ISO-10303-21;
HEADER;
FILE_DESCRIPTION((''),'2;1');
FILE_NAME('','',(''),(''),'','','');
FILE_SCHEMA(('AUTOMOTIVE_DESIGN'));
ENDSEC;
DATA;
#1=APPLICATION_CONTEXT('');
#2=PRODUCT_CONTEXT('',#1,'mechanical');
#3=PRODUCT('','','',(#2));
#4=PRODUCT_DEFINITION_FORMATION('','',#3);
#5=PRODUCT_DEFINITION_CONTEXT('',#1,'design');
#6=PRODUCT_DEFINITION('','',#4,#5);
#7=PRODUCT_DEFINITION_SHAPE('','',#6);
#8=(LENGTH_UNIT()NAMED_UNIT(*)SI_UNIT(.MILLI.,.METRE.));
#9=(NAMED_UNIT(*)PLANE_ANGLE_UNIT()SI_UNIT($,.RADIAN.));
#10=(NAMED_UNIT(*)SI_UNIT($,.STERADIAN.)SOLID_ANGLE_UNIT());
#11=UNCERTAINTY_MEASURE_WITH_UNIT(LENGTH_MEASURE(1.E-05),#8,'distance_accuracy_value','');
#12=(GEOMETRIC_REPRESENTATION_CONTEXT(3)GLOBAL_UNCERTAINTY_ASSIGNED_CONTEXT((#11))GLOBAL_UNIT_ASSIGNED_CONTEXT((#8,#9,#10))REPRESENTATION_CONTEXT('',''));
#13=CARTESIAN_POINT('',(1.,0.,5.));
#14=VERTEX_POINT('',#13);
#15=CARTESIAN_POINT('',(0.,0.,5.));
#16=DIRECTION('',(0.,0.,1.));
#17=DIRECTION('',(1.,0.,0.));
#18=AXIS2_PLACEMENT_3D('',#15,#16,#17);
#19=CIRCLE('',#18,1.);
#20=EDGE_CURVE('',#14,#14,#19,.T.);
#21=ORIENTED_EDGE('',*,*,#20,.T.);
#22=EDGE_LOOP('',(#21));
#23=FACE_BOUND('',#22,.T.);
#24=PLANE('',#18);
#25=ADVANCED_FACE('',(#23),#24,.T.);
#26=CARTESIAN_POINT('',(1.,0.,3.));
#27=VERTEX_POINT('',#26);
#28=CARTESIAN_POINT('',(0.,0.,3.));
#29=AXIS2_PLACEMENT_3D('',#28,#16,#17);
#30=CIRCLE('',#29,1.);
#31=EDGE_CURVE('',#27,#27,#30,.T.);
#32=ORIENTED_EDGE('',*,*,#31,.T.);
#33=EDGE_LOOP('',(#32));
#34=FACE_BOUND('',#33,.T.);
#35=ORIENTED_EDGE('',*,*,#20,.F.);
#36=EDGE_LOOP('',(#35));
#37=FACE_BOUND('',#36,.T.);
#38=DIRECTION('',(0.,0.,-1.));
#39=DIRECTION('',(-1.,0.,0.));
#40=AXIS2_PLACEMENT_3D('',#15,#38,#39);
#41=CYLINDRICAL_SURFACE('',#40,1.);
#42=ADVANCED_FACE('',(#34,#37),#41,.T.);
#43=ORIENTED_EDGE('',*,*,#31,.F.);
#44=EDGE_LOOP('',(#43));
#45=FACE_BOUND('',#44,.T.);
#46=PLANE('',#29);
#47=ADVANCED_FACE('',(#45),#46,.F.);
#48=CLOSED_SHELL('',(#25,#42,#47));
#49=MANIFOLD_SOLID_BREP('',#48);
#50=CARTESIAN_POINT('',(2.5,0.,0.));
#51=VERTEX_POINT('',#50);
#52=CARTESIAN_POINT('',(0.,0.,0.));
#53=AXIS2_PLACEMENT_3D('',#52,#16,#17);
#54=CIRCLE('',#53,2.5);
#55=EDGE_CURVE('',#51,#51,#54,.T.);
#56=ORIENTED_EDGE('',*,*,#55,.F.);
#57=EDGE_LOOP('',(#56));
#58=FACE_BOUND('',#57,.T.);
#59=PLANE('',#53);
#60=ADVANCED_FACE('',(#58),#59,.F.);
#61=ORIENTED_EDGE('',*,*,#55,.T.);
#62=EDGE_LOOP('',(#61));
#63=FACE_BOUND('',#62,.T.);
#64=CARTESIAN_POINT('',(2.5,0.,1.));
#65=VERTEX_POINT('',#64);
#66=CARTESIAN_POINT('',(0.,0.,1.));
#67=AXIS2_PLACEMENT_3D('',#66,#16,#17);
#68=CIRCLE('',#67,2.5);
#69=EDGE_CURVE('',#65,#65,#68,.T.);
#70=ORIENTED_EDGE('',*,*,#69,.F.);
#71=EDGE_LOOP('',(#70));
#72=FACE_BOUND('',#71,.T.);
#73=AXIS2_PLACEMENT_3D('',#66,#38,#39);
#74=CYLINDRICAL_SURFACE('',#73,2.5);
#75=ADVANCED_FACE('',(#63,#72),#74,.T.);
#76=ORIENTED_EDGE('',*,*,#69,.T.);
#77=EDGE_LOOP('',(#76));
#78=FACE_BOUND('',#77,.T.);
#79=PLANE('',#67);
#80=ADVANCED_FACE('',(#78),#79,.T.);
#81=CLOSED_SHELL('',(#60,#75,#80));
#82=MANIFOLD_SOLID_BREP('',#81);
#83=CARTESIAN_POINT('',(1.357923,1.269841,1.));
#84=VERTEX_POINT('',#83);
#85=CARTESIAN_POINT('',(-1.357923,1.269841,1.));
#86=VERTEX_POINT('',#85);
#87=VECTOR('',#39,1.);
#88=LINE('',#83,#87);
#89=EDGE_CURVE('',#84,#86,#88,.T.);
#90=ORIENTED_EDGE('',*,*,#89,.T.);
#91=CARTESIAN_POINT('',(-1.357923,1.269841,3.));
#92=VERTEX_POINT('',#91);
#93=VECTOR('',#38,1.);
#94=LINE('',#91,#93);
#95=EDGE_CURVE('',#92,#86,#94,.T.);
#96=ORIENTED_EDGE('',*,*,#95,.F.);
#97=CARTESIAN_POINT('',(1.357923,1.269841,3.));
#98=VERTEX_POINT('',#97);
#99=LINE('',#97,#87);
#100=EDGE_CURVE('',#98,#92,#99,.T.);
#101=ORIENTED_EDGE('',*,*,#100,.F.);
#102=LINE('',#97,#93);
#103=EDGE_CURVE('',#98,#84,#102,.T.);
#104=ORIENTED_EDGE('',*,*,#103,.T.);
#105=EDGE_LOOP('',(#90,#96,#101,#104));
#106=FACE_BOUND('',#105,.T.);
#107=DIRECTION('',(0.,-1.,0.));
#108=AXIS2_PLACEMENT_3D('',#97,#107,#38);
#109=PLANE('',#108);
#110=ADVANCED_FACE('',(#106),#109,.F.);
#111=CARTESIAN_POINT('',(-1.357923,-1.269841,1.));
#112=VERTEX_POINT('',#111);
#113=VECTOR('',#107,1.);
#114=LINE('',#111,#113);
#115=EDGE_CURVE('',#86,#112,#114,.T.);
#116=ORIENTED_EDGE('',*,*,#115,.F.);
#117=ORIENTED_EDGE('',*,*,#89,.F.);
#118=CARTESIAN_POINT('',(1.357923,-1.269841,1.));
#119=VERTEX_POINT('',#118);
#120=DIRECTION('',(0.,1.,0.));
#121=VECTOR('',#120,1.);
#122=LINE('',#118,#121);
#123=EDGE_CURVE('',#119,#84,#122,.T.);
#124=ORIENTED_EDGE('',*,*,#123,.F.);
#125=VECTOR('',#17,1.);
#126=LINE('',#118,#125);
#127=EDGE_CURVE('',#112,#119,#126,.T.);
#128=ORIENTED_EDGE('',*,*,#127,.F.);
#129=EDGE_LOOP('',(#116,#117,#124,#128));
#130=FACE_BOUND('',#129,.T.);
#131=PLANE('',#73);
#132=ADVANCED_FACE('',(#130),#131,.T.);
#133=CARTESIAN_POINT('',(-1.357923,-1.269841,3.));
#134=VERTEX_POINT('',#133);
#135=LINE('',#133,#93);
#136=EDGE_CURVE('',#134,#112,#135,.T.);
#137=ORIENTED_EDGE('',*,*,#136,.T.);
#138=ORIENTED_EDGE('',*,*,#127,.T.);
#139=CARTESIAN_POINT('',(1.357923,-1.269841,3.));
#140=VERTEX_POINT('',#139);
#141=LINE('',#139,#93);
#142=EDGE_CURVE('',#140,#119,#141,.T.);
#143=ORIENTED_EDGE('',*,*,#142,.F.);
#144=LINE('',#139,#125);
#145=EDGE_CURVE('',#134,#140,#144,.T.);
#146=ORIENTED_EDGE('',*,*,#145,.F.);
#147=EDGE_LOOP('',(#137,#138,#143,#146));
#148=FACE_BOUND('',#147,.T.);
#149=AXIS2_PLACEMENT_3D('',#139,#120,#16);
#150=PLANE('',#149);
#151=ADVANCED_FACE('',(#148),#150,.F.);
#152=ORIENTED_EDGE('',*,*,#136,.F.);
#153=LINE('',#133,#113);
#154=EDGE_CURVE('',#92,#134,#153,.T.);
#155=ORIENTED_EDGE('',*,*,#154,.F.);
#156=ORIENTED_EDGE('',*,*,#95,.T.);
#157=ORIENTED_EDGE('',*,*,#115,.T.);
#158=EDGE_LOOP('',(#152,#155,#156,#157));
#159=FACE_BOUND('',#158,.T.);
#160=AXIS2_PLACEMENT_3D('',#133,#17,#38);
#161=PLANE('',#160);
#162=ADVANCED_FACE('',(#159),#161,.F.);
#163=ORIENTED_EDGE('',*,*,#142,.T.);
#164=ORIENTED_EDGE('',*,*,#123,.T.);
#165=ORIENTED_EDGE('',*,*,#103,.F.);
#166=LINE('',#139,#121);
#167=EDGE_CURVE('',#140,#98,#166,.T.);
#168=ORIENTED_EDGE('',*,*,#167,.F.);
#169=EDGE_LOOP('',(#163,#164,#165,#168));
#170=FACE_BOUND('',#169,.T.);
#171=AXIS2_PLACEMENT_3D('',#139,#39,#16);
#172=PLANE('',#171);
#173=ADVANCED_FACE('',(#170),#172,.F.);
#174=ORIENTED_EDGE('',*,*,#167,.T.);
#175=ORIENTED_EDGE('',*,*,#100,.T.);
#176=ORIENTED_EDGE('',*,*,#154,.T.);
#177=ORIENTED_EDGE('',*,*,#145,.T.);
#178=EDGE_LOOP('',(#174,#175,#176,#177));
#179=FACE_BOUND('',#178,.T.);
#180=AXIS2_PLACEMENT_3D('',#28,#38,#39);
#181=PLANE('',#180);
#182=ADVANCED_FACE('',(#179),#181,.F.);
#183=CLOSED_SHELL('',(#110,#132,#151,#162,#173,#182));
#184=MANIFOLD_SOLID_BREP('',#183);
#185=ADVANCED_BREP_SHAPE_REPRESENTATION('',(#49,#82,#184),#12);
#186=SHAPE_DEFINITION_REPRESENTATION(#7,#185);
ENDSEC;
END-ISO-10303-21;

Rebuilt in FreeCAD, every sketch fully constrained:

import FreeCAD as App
import Part
import Sketcher
Q = App.Units.Quantity

doc = App.newDocument("Part")
params = doc.addObject("Spreadsheet::Sheet", "Params")
for row, (alias, value) in enumerate([
    ("sketch1_diameter", "5 mm"),
    ("pad1_length", "1 mm"),
    ("pad2_length", "2 mm"),
    ("sketch3_diameter", "2 mm"),
    ("pad3_length", "2 mm"),
], start=1):
    params.set(f"A{row}", alias)
    params.set(f"B{row}", "=" + value)
    params.setAlias(f"B{row}", alias)

body = doc.addObject("PartDesign::Body", "Body")

sketch1 = body.newObject("Sketcher::SketchObject", "Sketch")
sketch1.AttachmentSupport = (doc.getObject("XY_Plane"), [""])
sketch1.MapMode = "FlatFace"
sketch1.addGeometry(Part.Circle(App.Vector(0, 0, 0), App.Vector(0, 0, 1), 2.5), False)
sketch1.addConstraint([
    Sketcher.Constraint("Coincident", 0, 3, -1, 1),
    Sketcher.Constraint("Diameter", 0, Q("5 mm")),
])
sketch1.setExpression("Constraints[1]", "Params.sketch1_diameter")
pad1 = body.newObject("PartDesign::Pad", "Pad")
pad1.Profile = sketch1
pad1.setExpression("Length", "Params.pad1_length")
body2 = doc.addObject("PartDesign::Body", "Body001")

sketch2 = body2.newObject("Sketcher::SketchObject", "Sketch001")
sketch2.AttachmentSupport = (doc.getObject("XY_Plane001"), [""])
sketch2.MapMode = "FlatFace"
sketch2.AttachmentOffset = App.Placement(App.Vector(0, 0, 1), App.Rotation())
sketch2.addGeometry([
    Part.LineSegment(App.Vector(-1.4, 1.3, 0), App.Vector(-1.4, -1.3, 0)),
    Part.LineSegment(App.Vector(-1.4, -1.3, 0), App.Vector(1.4, -1.3, 0)),
    Part.LineSegment(App.Vector(1.4, -1.3, 0), App.Vector(1.4, 1.3, 0)),
    Part.LineSegment(App.Vector(1.4, 1.3, 0), App.Vector(-1.4, 1.3, 0)),
], False)
sketch2.addConstraint([
    Sketcher.Constraint("Coincident", 0, 2, 1, 1),
    Sketcher.Constraint("Coincident", 1, 2, 2, 1),
    Sketcher.Constraint("Coincident", 2, 2, 3, 1),
    Sketcher.Constraint("Coincident", 3, 2, 0, 1),
    Sketcher.Constraint("Vertical", 0),
    Sketcher.Constraint("Horizontal", 1),
    Sketcher.Constraint("Vertical", 2),
    Sketcher.Constraint("Horizontal", 3),
    Sketcher.Constraint("Symmetric", 0, 2, 2, 2, -1, 1),
    Sketcher.Constraint("DistanceY", 0, 2, 0, 1, Q("2.539681 mm")),
    Sketcher.Constraint("DistanceX", 1, 1, 1, 2, Q("2.715846 mm")),
])
pad2 = body2.newObject("PartDesign::Pad", "Pad001")
pad2.Profile = sketch2
pad2.setExpression("Length", "Params.pad2_length")
body3 = doc.addObject("PartDesign::Body", "Body002")

sketch3 = body3.newObject("Sketcher::SketchObject", "Sketch002")
sketch3.AttachmentSupport = (doc.getObject("XY_Plane002"), [""])
sketch3.MapMode = "FlatFace"
sketch3.AttachmentOffset = App.Placement(App.Vector(0, 0, 3), App.Rotation())
sketch3.addGeometry(Part.Circle(App.Vector(0, 0, 0), App.Vector(0, 0, 1), 1), False)
sketch3.addConstraint([
    Sketcher.Constraint("Coincident", 0, 3, -1, 1),
    Sketcher.Constraint("Diameter", 0, Q("2 mm")),
])
sketch3.setExpression("Constraints[1]", "Params.sketch3_diameter")
pad3 = body3.newObject("PartDesign::Pad", "Pad002")
pad3.Profile = sketch3
pad3.setExpression("Length", "Params.pad3_length")

doc.recompute()
